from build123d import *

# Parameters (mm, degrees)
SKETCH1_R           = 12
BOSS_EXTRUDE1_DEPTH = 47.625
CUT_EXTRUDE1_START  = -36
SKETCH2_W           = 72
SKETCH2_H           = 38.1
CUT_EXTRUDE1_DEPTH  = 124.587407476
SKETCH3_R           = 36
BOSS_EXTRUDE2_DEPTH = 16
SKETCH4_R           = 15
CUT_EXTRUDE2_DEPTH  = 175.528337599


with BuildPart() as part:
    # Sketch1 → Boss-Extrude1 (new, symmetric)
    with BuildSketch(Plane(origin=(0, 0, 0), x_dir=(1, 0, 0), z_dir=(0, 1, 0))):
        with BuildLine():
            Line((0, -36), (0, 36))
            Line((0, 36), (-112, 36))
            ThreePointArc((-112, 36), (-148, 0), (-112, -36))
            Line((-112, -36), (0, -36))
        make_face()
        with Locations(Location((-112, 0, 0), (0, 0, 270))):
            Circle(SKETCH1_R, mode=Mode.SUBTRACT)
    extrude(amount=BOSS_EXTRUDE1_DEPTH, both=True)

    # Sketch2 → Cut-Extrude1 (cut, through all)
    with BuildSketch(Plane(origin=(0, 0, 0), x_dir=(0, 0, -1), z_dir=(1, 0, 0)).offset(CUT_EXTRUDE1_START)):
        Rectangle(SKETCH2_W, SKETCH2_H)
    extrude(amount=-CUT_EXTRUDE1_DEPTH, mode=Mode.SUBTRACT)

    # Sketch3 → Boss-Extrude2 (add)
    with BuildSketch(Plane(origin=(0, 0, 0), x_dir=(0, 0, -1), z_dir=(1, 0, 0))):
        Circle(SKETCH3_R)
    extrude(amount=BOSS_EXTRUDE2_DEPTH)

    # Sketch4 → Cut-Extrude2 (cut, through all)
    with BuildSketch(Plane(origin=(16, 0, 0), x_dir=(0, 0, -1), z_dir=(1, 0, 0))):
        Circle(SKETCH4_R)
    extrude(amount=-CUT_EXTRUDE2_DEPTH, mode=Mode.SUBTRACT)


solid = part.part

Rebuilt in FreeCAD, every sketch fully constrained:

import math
import FreeCAD as App
import Part
import Sketcher
from FreeCAD import Vector

doc = App.newDocument("Part")
body = doc.addObject("PartDesign::Body", "Body")

# Sketch on XZ plane
sketch1 = body.newObject("Sketcher::SketchObject", "Sketch")
sketch1.AttachmentSupport = (doc.getObject("XZ_Plane"), [""])
sketch1.MapMode = "FlatFace"
sketch1.addGeometry(Part.LineSegment(Vector(0, 36, 0), Vector(0, -36, 0)), False)
sketch1.addGeometry(Part.LineSegment(Vector(0, -36, 0), Vector(-112, -36, 0)), False)
sketch1.addGeometry(Part.ArcOfCircle(Part.Circle(Vector(-112, 0, 0), Vector(0, 0, 1), 36), math.radians(90), math.radians(270)), False)
sketch1.addGeometry(Part.LineSegment(Vector(-112, 36, 0), Vector(0, 36, 0)), False)
sketch1.addGeometry(Part.Circle(Vector(-112, 0, 0), Vector(0, 0, 1), 12), False)
sketch1.addConstraint(Sketcher.Constraint("Coincident", 0, 2, 1, 1))
sketch1.addConstraint(Sketcher.Constraint("Tangent", 1, 2, 2, 2))
sketch1.addConstraint(Sketcher.Constraint("Tangent", 2, 1, 3, 1))
sketch1.addConstraint(Sketcher.Constraint("Coincident", 3, 2, 0, 1))
sketch1.addConstraint(Sketcher.Constraint("Vertical", 0))
sketch1.addConstraint(Sketcher.Constraint("Horizontal", 1))
sketch1.addConstraint(Sketcher.Constraint("Horizontal", 3))
sketch1.addConstraint(Sketcher.Constraint("Coincident", 4, 3, 2, 3))
sketch1.addConstraint(Sketcher.Constraint("Symmetric", 0, 2, 3, 2, -1, 1))
sketch1.addConstraint(Sketcher.Constraint("Diameter", 4, 24.0))
sketch1.addConstraint(Sketcher.Constraint("Radius", 2, 36.0))
sketch1.addConstraint(Sketcher.Constraint("DistanceX", 1, 2, 1, 1, 112.0))
pad1 = body.newObject("PartDesign::Pad", "Pad")
pad1.Profile = sketch1
pad1.Length = 95.25
pad1.Midplane = True

# Sketch on YZ plane
sketch2 = body.newObject("Sketcher::SketchObject", "Sketch001")
sketch2.AttachmentSupport = (doc.getObject("YZ_Plane"), [""])
sketch2.MapMode = "FlatFace"
sketch2.AttachmentOffset = App.Placement(Vector(0, 0, -36), App.Rotation())
sketch2.addGeometry(Part.LineSegment(Vector(19.05, 36, 0), Vector(-19.05, 36, 0)), False)
sketch2.addGeometry(Part.LineSegment(Vector(-19.05, 36, 0), Vector(-19.05, -36, 0)), False)
sketch2.addGeometry(Part.LineSegment(Vector(-19.05, -36, 0), Vector(19.05, -36, 0)), False)
sketch2.addGeometry(Part.LineSegment(Vector(19.05, -36, 0), Vector(19.05, 36, 0)), False)
sketch2.addConstraint(Sketcher.Constraint("Coincident", 0, 2, 1, 1))
sketch2.addConstraint(Sketcher.Constraint("Coincident", 1, 2, 2, 1))
sketch2.addConstraint(Sketcher.Constraint("Coincident", 2, 2, 3, 1))
sketch2.addConstraint(Sketcher.Constraint("Coincident", 3, 2, 0, 1))
sketch2.addConstraint(Sketcher.Constraint("Horizontal", 0))
sketch2.addConstraint(Sketcher.Constraint("Vertical", 1))
sketch2.addConstraint(Sketcher.Constraint("Horizontal", 2))
sketch2.addConstraint(Sketcher.Constraint("Vertical", 3))
sketch2.addConstraint(Sketcher.Constraint("Symmetric", 0, 2, 2, 2, -1, 1))
sketch2.addConstraint(Sketcher.Constraint("DistanceY", 1, 2, 1, 1, 72.0))
sketch2.addConstraint(Sketcher.Constraint("DistanceX", 0, 2, 0, 1, 38.1))
pocket1 = body.newObject("PartDesign::Pocket", "Pocket")
pocket1.Profile = sketch2
pocket1.Type = "ThroughAll"

# Sketch on YZ plane
sketch3 = body.newObject("Sketcher::SketchObject", "Sketch002")
sketch3.AttachmentSupport = (doc.getObject("YZ_Plane"), [""])
sketch3.MapMode = "FlatFace"
sketch3.addGeometry(Part.Circle(Vector(0, 0, 0), Vector(0, 0, 1), 36), False)
sketch3.addConstraint(Sketcher.Constraint("Coincident", 0, 3, -1, 1))
sketch3.addConstraint(Sketcher.Constraint("Diameter", 0, 72.0))
pad2 = body.newObject("PartDesign::Pad", "Pad001")
pad2.Profile = sketch3
pad2.Length = 16

# Sketch on YZ plane
sketch4 = body.newObject("Sketcher::SketchObject", "Sketch003")
sketch4.AttachmentSupport = (doc.getObject("YZ_Plane"), [""])
sketch4.MapMode = "FlatFace"
sketch4.AttachmentOffset = App.Placement(Vector(0, 0, 16), App.Rotation())
sketch4.addGeometry(Part.Circle(Vector(0, 0, 0), Vector(0, 0, 1), 15), False)
sketch4.addConstraint(Sketcher.Constraint("Coincident", 0, 3, -1, 1))
sketch4.addConstraint(Sketcher.Constraint("Diameter", 0, 30.0))
pocket2 = body.newObject("PartDesign::Pocket", "Pocket001")
pocket2.Profile = sketch4
pocket2.Type = "ThroughAll"

doc.recompute()
